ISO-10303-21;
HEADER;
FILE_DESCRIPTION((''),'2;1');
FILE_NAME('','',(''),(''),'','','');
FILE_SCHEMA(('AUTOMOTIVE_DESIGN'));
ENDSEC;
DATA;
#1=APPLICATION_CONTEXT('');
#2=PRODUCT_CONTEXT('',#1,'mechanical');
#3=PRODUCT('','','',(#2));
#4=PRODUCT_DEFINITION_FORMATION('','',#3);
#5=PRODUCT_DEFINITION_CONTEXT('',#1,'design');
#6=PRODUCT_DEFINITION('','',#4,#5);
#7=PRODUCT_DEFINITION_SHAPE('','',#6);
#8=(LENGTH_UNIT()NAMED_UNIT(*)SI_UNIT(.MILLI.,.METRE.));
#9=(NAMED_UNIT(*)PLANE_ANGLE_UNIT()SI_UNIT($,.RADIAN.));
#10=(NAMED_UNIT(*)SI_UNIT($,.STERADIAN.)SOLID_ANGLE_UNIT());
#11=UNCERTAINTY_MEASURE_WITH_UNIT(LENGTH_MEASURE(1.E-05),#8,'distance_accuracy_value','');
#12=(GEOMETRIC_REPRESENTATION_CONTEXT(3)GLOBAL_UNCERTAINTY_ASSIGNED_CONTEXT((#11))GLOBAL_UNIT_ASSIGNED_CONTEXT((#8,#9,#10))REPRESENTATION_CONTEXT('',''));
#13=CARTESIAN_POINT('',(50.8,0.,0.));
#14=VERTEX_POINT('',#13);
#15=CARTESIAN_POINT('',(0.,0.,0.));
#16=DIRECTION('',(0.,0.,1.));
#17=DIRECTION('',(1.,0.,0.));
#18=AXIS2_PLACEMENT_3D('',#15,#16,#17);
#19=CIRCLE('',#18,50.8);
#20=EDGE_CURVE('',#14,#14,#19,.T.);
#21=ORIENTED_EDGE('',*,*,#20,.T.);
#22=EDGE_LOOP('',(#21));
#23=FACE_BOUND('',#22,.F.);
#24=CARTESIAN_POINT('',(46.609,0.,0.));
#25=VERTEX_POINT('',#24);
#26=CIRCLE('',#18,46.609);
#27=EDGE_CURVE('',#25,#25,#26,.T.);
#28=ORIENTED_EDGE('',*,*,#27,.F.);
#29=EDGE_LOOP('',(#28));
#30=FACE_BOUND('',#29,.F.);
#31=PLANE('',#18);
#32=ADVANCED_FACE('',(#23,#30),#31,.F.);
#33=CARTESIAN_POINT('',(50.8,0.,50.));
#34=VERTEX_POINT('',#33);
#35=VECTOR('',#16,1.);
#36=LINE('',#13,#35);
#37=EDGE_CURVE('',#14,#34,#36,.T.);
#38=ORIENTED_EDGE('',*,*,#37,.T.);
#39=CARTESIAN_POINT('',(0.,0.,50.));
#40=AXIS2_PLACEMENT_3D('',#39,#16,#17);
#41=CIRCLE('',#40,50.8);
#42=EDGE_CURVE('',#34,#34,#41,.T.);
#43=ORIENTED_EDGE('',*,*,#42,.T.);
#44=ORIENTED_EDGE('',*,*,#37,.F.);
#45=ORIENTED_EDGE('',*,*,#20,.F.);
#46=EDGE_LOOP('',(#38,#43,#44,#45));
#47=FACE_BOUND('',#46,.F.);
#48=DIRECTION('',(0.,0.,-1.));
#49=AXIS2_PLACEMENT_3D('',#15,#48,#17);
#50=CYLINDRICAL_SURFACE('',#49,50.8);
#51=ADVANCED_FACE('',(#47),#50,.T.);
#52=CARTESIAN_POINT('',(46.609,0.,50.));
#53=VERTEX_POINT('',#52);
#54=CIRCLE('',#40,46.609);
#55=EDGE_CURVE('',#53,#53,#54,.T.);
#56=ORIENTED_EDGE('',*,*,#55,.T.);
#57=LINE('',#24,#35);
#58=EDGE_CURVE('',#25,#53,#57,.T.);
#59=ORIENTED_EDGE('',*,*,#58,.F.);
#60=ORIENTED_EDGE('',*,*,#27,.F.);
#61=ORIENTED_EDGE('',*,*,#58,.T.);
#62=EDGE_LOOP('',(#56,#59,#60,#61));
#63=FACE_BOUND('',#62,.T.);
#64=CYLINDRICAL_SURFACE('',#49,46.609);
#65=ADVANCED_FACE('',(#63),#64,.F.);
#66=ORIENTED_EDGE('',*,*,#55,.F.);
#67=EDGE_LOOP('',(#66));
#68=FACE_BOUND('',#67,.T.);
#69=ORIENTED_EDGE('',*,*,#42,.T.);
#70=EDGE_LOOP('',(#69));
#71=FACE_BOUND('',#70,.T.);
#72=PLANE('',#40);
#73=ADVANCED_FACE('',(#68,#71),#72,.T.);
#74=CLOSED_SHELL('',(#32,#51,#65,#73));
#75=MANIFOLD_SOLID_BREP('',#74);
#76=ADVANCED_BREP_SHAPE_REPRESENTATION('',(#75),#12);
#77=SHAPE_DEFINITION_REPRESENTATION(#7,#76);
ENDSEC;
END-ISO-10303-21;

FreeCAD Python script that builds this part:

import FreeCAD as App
import Part
import Sketcher
from FreeCAD import Vector
Q = App.Units.Quantity

doc = App.newDocument("Part")
body = doc.addObject("PartDesign::Body", "Body")

# Sketch on XY plane
sketch1 = body.newObject("Sketcher::SketchObject", "Sketch")
sketch1.AttachmentSupport = (doc.getObject("XY_Plane"), [""])
sketch1.MapMode = "FlatFace"
sketch1.addGeometry([
    Part.Circle(Vector(0, 0, 0), Vector(0, 0, 1), 50.8),
    Part.Circle(Vector(0, 0, 0), Vector(0, 0, 1), 46.609),
], False)
sketch1.addConstraint([
    Sketcher.Constraint("Coincident", 0, 3, -1, 1),
    Sketcher.Constraint("Coincident", 1, 3, -1, 1),
    Sketcher.Constraint("Diameter", 0, Q("4 in")),
    Sketcher.Constraint("Diameter", 1, Q("3.67 in")),
])
pad1 = body.newObject("PartDesign::Pad", "Pad")
pad1.Profile = sketch1
pad1.Length = 50

doc.recompute()
